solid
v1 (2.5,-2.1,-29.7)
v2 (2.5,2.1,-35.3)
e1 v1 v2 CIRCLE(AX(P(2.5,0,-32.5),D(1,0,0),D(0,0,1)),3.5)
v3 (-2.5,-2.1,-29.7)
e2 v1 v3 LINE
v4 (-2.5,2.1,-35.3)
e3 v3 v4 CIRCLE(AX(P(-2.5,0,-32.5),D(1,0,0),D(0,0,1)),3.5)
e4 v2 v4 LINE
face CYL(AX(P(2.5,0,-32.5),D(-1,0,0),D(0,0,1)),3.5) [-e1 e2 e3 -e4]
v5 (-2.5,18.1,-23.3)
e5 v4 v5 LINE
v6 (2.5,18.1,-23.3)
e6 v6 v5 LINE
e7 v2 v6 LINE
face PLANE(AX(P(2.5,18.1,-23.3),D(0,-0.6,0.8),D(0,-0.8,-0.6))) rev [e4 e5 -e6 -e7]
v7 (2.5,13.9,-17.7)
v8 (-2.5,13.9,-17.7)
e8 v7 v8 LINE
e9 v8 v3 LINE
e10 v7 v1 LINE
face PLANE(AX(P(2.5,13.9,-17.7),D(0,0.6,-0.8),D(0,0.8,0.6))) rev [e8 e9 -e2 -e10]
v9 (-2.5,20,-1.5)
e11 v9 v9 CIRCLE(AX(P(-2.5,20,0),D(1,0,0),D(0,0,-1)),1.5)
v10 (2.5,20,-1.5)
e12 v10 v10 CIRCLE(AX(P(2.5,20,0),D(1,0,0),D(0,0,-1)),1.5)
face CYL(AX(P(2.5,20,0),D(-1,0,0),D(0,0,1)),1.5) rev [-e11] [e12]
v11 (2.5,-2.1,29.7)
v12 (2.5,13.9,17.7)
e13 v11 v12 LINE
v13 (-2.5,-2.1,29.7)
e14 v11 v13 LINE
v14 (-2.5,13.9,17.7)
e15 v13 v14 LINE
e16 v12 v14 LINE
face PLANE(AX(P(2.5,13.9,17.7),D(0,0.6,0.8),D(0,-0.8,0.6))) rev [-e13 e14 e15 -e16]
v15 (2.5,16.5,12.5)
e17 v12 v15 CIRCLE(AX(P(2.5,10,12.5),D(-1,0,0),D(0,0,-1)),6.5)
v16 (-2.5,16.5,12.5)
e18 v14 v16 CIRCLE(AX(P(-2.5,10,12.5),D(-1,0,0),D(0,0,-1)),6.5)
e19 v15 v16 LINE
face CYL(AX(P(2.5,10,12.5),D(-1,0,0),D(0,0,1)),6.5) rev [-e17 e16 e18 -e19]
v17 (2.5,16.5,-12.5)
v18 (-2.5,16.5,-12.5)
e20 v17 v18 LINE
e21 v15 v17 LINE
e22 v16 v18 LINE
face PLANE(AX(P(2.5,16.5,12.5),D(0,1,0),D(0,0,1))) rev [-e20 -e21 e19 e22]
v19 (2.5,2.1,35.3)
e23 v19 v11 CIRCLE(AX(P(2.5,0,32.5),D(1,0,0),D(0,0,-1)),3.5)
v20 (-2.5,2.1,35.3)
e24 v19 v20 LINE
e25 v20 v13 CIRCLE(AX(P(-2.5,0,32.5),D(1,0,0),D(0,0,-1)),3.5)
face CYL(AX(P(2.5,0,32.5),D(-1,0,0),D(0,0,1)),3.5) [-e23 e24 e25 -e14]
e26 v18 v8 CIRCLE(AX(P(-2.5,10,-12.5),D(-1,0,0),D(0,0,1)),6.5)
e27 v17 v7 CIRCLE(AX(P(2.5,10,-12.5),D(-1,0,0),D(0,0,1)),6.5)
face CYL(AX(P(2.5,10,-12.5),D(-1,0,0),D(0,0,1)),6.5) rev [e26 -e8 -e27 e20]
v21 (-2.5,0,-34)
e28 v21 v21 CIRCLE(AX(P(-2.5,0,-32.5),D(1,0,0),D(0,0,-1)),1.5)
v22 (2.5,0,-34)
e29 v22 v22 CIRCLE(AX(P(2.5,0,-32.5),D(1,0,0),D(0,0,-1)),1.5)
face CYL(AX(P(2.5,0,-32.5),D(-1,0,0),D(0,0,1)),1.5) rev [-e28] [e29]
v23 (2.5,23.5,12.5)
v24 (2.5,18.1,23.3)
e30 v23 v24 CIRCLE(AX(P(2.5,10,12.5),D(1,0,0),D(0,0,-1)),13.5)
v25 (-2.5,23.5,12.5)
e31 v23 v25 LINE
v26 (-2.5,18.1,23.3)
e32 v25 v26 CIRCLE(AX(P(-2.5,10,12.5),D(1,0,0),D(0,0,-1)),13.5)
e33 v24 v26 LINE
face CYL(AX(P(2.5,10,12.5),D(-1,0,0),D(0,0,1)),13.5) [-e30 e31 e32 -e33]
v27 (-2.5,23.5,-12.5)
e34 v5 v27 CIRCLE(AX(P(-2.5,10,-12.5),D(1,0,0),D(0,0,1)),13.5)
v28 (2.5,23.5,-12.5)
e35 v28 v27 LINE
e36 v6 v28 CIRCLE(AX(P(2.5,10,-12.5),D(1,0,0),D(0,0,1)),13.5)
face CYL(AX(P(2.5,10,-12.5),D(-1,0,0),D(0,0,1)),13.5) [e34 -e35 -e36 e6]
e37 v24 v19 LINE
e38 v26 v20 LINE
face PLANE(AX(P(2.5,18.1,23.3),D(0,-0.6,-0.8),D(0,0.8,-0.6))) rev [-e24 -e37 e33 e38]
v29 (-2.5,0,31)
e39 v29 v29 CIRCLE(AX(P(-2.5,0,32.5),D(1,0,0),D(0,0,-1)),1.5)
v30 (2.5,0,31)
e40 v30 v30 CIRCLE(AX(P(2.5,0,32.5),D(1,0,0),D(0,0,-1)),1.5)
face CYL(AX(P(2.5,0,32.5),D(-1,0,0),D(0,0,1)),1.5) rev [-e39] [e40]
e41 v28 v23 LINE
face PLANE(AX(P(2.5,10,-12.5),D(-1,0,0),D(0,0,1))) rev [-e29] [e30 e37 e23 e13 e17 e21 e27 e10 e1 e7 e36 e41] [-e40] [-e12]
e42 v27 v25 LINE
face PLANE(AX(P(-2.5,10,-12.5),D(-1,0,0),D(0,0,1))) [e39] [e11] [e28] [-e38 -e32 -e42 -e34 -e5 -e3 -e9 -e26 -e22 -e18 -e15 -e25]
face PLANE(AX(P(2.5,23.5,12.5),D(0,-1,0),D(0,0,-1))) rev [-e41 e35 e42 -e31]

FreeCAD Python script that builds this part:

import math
import FreeCAD as App
import Part
import Sketcher
from FreeCAD import Vector

doc = App.newDocument("Part")
body = doc.addObject("PartDesign::Body", "Body")

# Sketch on YZ plane
sketch1 = doc.addObject("Sketcher::SketchObject", "Sketch")
body.addObject(sketch1)
sketch1.AttachmentSupport = (doc.YZ_Plane, [""])
sketch1.MapMode = "FlatFace"
sketch1.addGeometry([
    Part.LineSegment(Vector(2.1, -35.3, 0), Vector(18.1, -23.3, 0)),  # 0
    Part.ArcOfCircle(Part.Circle(Vector(10, -12.5, 0), Vector(0, 0, 1), 13.5), math.radians(-53), math.radians(0)),  # 1
    Part.LineSegment(Vector(23.5, -12.5, 0), Vector(23.5, 12.5, 0)),  # 2
    Part.ArcOfCircle(Part.Circle(Vector(10, 12.5, 0), Vector(0, 0, 1), 13.5), math.radians(0), math.radians(53)),  # 3
    Part.LineSegment(Vector(18.1, 23.3, 0), Vector(2.1, 35.3, 0)),  # 4
    Part.ArcOfCircle(Part.Circle(Vector(0, 32.5, 0), Vector(0, 0, 1), 3.5), math.radians(53), math.radians(233)),  # 5
    Part.LineSegment(Vector(-2.1, 29.7, 0), Vector(13.9, 17.7, 0)),  # 6
    Part.ArcOfCircle(Part.Circle(Vector(10, 12.5, 0), Vector(0, 0, 1), 6.5), math.radians(0), math.radians(53)),  # 7
    Part.LineSegment(Vector(16.5, 12.5, 0), Vector(16.5, -12.5, 0)),  # 8
    Part.ArcOfCircle(Part.Circle(Vector(10, -12.5, 0), Vector(0, 0, 1), 6.5), math.radians(-53), math.radians(0)),  # 9
    Part.LineSegment(Vector(13.9, -17.7, 0), Vector(-2.1, -29.7, 0)),  # 10
    Part.ArcOfCircle(Part.Circle(Vector(0, -32.5, 0), Vector(0, 0, 1), 3.5), math.radians(127), math.radians(307)),  # 11
    Part.Circle(Vector(0, -32.5, 0), Vector(0, 0, 1), 1.5),  # 12
    Part.Circle(Vector(0, 32.5, 0), Vector(0, 0, 1), 1.5),  # 13
    Part.Circle(Vector(20, 0, 0), Vector(0, 0, 1), 1.5),  # 14
], False)
sketch1.addConstraint([
    Sketcher.Constraint("Tangent", 0, 2, 1, 1),
    Sketcher.Constraint("Tangent", 1, 2, 2, 1),
    Sketcher.Constraint("Tangent", 2, 2, 3, 1),
    Sketcher.Constraint("Tangent", 3, 2, 4, 1),
    Sketcher.Constraint("Tangent", 4, 2, 5, 1),
    Sketcher.Constraint("Tangent", 5, 2, 6, 1),
    Sketcher.Constraint("Tangent", 6, 2, 7, 2),
    Sketcher.Constraint("Tangent", 7, 1, 8, 1),
    Sketcher.Constraint("Tangent", 8, 2, 9, 2),
    Sketcher.Constraint("Tangent", 9, 1, 10, 1),
    Sketcher.Constraint("Tangent", 10, 2, 11, 1),
    Sketcher.Constraint("Tangent", 11, 2, 0, 1),
    Sketcher.Constraint("Vertical", 2),
    Sketcher.Constraint("Vertical", 8),
    Sketcher.Constraint("Coincident", 7, 3, 3, 3),
    Sketcher.Constraint("Coincident", 9, 3, 1, 3),
    Sketcher.Constraint("Coincident", 12, 3, 11, 3),
    Sketcher.Constraint("Coincident", 13, 3, 5, 3),
    Sketcher.Constraint("Equal", 1, 3),
    Sketcher.Constraint("Equal", 5, 11),
    Sketcher.Constraint("Equal", 12, 13),
    Sketcher.Constraint("Equal", 13, 14),
    Sketcher.Constraint("Symmetric", 5, 3, 11, 3, -1, 1),
    Sketcher.Constraint("Symmetric", 0, 2, 3, 2, -1),
    Sketcher.Constraint("PointOnObject", 14, 3, -1),
    Sketcher.Constraint("Parallel", 4, 6),
    Sketcher.Constraint("Diameter", 12, 3.0),
    Sketcher.Constraint("Radius", 1, 13.5),
    Sketcher.Constraint("Radius", 5, 3.5),
    Sketcher.Constraint("DistanceY", 2, 1, 2, 2, 25.0),
    Sketcher.Constraint("Distance", 0, 20.0),
    Sketcher.Constraint("DistanceX", -1, 1, 1, 3, 10.0),
    Sketcher.Constraint("DistanceX", -1, 1, 14, 3, 20.0),
])
pad1 = doc.addObject("PartDesign::Pad", "Pad")
body.addObject(pad1)
pad1.Profile = sketch1
pad1.Length = 5
pad1.Midplane = True

doc.recompute()
